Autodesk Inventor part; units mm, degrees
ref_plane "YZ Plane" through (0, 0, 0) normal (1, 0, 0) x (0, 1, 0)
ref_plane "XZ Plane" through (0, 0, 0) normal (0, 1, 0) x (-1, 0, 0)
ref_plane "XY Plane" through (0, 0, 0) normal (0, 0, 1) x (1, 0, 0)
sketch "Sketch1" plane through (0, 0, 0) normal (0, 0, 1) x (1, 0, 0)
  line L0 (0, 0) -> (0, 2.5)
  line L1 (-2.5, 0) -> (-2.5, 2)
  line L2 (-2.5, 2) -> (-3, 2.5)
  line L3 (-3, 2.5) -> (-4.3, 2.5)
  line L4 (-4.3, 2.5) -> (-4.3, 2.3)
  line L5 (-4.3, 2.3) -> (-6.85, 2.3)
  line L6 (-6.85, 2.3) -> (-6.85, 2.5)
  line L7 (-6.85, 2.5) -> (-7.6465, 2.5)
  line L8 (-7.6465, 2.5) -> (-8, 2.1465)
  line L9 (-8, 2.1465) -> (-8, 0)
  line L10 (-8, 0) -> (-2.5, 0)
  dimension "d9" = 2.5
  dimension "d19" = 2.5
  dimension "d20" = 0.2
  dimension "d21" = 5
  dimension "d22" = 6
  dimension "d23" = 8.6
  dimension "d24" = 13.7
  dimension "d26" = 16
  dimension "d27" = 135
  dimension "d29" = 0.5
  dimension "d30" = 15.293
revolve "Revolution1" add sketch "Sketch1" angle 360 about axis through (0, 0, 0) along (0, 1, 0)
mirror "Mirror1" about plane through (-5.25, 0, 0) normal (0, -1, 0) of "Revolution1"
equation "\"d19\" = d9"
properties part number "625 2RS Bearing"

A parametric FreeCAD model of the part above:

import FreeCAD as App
import Part
import Sketcher

V = App.Vector
Q = App.Units.Quantity


def add_polygon(sketch, points):
    """Adds a closed chain of lines whose ends are joined by coincident constraints."""
    first, n = sketch.GeometryCount, len(points)
    for a, b in zip(points, points[1:] + points[:1]):
        sketch.addGeometry(Part.LineSegment(App.Vector(*a, 0), App.Vector(*b, 0)), False)
    for i in range(n):
        sketch.addConstraint(Sketcher.Constraint("Coincident", first + i, 2, first + (i + 1) % n, 1))

doc = App.newDocument("Part")
body = doc.addObject("PartDesign::Body", "Body")

# Sketch on XY plane
sketch1 = body.newObject("Sketcher::SketchObject", "Sketch")
sketch1.AttachmentSupport = (doc.getObject("XY_Plane"), [""])
sketch1.MapMode = "FlatFace"
add_polygon(sketch1, [(-8, 0), (-2.5, 0), (-2.5, 2), (-3, 2.5), (-4.3, 2.5), (-4.3, 2.3), (-6.85, 2.3), (-6.85, 2.5), (-7.65, 2.5), (-8, 2.15)])  # lines 0-9
sketch1.addConstraint(Sketcher.Constraint("Horizontal", 0))
sketch1.addConstraint(Sketcher.Constraint("Vertical", 1))
sketch1.addConstraint(Sketcher.Constraint("Horizontal", 3))
sketch1.addConstraint(Sketcher.Constraint("Vertical", 4))
sketch1.addConstraint(Sketcher.Constraint("Horizontal", 5))
sketch1.addConstraint(Sketcher.Constraint("Vertical", 6))
sketch1.addConstraint(Sketcher.Constraint("Horizontal", 7))
sketch1.addConstraint(Sketcher.Constraint("Vertical", 9))
sketch1.addConstraint(Sketcher.Constraint("PointOnObject", 0, 2, -1))
sketch1.addConstraint(Sketcher.Constraint("Perpendicular", 2, 8))
sketch1.addConstraint(Sketcher.Constraint("Horizontal", 3, 2, 6, 2))
sketch1.addConstraint(Sketcher.Constraint("Angle", 2, Q("135 deg")))
sketch1.addConstraint(Sketcher.Constraint("DistanceY", 4, 2, 4, 1, Q("0.2 mm")))
sketch1.addConstraint(Sketcher.Constraint("Distance", 8, Q("0.5 mm")))
sketch1.addConstraint(Sketcher.Constraint("DistanceX", 0, 2, -1, 1, Q("2.5 mm")))
sketch1.addConstraint(Sketcher.Constraint("DistanceY", -1, 1, 2, 2, Q("2.5 mm")))
sketch1.addConstraint(Sketcher.Constraint("DistanceX", 2, 2, 1, 2, Q("0.5 mm")))
sketch1.addConstraint(Sketcher.Constraint("DistanceX", 0, 1, 0, 2, Q("5.5 mm")))
sketch1.addConstraint(Sketcher.Constraint("DistanceX", 3, 2, 3, 1, Q("1.3 mm")))
sketch1.addConstraint(Sketcher.Constraint("DistanceX", 5, 2, 5, 1, Q("2.55 mm")))
revolution = body.newObject("PartDesign::Revolution", "Revolution")
revolution.Profile = sketch1
revolution.ReferenceAxis = (sketch1, ["V_Axis"])
revolution.Angle = 360
doc.recompute()

mirrored = body.newObject("PartDesign::Mirrored", "Mirrored")
mirrored.Originals = [revolution]
mirrored.MirrorPlane = (doc.getObject("XZ_Plane"), [""])
body.Tip = mirrored

doc.recompute()
